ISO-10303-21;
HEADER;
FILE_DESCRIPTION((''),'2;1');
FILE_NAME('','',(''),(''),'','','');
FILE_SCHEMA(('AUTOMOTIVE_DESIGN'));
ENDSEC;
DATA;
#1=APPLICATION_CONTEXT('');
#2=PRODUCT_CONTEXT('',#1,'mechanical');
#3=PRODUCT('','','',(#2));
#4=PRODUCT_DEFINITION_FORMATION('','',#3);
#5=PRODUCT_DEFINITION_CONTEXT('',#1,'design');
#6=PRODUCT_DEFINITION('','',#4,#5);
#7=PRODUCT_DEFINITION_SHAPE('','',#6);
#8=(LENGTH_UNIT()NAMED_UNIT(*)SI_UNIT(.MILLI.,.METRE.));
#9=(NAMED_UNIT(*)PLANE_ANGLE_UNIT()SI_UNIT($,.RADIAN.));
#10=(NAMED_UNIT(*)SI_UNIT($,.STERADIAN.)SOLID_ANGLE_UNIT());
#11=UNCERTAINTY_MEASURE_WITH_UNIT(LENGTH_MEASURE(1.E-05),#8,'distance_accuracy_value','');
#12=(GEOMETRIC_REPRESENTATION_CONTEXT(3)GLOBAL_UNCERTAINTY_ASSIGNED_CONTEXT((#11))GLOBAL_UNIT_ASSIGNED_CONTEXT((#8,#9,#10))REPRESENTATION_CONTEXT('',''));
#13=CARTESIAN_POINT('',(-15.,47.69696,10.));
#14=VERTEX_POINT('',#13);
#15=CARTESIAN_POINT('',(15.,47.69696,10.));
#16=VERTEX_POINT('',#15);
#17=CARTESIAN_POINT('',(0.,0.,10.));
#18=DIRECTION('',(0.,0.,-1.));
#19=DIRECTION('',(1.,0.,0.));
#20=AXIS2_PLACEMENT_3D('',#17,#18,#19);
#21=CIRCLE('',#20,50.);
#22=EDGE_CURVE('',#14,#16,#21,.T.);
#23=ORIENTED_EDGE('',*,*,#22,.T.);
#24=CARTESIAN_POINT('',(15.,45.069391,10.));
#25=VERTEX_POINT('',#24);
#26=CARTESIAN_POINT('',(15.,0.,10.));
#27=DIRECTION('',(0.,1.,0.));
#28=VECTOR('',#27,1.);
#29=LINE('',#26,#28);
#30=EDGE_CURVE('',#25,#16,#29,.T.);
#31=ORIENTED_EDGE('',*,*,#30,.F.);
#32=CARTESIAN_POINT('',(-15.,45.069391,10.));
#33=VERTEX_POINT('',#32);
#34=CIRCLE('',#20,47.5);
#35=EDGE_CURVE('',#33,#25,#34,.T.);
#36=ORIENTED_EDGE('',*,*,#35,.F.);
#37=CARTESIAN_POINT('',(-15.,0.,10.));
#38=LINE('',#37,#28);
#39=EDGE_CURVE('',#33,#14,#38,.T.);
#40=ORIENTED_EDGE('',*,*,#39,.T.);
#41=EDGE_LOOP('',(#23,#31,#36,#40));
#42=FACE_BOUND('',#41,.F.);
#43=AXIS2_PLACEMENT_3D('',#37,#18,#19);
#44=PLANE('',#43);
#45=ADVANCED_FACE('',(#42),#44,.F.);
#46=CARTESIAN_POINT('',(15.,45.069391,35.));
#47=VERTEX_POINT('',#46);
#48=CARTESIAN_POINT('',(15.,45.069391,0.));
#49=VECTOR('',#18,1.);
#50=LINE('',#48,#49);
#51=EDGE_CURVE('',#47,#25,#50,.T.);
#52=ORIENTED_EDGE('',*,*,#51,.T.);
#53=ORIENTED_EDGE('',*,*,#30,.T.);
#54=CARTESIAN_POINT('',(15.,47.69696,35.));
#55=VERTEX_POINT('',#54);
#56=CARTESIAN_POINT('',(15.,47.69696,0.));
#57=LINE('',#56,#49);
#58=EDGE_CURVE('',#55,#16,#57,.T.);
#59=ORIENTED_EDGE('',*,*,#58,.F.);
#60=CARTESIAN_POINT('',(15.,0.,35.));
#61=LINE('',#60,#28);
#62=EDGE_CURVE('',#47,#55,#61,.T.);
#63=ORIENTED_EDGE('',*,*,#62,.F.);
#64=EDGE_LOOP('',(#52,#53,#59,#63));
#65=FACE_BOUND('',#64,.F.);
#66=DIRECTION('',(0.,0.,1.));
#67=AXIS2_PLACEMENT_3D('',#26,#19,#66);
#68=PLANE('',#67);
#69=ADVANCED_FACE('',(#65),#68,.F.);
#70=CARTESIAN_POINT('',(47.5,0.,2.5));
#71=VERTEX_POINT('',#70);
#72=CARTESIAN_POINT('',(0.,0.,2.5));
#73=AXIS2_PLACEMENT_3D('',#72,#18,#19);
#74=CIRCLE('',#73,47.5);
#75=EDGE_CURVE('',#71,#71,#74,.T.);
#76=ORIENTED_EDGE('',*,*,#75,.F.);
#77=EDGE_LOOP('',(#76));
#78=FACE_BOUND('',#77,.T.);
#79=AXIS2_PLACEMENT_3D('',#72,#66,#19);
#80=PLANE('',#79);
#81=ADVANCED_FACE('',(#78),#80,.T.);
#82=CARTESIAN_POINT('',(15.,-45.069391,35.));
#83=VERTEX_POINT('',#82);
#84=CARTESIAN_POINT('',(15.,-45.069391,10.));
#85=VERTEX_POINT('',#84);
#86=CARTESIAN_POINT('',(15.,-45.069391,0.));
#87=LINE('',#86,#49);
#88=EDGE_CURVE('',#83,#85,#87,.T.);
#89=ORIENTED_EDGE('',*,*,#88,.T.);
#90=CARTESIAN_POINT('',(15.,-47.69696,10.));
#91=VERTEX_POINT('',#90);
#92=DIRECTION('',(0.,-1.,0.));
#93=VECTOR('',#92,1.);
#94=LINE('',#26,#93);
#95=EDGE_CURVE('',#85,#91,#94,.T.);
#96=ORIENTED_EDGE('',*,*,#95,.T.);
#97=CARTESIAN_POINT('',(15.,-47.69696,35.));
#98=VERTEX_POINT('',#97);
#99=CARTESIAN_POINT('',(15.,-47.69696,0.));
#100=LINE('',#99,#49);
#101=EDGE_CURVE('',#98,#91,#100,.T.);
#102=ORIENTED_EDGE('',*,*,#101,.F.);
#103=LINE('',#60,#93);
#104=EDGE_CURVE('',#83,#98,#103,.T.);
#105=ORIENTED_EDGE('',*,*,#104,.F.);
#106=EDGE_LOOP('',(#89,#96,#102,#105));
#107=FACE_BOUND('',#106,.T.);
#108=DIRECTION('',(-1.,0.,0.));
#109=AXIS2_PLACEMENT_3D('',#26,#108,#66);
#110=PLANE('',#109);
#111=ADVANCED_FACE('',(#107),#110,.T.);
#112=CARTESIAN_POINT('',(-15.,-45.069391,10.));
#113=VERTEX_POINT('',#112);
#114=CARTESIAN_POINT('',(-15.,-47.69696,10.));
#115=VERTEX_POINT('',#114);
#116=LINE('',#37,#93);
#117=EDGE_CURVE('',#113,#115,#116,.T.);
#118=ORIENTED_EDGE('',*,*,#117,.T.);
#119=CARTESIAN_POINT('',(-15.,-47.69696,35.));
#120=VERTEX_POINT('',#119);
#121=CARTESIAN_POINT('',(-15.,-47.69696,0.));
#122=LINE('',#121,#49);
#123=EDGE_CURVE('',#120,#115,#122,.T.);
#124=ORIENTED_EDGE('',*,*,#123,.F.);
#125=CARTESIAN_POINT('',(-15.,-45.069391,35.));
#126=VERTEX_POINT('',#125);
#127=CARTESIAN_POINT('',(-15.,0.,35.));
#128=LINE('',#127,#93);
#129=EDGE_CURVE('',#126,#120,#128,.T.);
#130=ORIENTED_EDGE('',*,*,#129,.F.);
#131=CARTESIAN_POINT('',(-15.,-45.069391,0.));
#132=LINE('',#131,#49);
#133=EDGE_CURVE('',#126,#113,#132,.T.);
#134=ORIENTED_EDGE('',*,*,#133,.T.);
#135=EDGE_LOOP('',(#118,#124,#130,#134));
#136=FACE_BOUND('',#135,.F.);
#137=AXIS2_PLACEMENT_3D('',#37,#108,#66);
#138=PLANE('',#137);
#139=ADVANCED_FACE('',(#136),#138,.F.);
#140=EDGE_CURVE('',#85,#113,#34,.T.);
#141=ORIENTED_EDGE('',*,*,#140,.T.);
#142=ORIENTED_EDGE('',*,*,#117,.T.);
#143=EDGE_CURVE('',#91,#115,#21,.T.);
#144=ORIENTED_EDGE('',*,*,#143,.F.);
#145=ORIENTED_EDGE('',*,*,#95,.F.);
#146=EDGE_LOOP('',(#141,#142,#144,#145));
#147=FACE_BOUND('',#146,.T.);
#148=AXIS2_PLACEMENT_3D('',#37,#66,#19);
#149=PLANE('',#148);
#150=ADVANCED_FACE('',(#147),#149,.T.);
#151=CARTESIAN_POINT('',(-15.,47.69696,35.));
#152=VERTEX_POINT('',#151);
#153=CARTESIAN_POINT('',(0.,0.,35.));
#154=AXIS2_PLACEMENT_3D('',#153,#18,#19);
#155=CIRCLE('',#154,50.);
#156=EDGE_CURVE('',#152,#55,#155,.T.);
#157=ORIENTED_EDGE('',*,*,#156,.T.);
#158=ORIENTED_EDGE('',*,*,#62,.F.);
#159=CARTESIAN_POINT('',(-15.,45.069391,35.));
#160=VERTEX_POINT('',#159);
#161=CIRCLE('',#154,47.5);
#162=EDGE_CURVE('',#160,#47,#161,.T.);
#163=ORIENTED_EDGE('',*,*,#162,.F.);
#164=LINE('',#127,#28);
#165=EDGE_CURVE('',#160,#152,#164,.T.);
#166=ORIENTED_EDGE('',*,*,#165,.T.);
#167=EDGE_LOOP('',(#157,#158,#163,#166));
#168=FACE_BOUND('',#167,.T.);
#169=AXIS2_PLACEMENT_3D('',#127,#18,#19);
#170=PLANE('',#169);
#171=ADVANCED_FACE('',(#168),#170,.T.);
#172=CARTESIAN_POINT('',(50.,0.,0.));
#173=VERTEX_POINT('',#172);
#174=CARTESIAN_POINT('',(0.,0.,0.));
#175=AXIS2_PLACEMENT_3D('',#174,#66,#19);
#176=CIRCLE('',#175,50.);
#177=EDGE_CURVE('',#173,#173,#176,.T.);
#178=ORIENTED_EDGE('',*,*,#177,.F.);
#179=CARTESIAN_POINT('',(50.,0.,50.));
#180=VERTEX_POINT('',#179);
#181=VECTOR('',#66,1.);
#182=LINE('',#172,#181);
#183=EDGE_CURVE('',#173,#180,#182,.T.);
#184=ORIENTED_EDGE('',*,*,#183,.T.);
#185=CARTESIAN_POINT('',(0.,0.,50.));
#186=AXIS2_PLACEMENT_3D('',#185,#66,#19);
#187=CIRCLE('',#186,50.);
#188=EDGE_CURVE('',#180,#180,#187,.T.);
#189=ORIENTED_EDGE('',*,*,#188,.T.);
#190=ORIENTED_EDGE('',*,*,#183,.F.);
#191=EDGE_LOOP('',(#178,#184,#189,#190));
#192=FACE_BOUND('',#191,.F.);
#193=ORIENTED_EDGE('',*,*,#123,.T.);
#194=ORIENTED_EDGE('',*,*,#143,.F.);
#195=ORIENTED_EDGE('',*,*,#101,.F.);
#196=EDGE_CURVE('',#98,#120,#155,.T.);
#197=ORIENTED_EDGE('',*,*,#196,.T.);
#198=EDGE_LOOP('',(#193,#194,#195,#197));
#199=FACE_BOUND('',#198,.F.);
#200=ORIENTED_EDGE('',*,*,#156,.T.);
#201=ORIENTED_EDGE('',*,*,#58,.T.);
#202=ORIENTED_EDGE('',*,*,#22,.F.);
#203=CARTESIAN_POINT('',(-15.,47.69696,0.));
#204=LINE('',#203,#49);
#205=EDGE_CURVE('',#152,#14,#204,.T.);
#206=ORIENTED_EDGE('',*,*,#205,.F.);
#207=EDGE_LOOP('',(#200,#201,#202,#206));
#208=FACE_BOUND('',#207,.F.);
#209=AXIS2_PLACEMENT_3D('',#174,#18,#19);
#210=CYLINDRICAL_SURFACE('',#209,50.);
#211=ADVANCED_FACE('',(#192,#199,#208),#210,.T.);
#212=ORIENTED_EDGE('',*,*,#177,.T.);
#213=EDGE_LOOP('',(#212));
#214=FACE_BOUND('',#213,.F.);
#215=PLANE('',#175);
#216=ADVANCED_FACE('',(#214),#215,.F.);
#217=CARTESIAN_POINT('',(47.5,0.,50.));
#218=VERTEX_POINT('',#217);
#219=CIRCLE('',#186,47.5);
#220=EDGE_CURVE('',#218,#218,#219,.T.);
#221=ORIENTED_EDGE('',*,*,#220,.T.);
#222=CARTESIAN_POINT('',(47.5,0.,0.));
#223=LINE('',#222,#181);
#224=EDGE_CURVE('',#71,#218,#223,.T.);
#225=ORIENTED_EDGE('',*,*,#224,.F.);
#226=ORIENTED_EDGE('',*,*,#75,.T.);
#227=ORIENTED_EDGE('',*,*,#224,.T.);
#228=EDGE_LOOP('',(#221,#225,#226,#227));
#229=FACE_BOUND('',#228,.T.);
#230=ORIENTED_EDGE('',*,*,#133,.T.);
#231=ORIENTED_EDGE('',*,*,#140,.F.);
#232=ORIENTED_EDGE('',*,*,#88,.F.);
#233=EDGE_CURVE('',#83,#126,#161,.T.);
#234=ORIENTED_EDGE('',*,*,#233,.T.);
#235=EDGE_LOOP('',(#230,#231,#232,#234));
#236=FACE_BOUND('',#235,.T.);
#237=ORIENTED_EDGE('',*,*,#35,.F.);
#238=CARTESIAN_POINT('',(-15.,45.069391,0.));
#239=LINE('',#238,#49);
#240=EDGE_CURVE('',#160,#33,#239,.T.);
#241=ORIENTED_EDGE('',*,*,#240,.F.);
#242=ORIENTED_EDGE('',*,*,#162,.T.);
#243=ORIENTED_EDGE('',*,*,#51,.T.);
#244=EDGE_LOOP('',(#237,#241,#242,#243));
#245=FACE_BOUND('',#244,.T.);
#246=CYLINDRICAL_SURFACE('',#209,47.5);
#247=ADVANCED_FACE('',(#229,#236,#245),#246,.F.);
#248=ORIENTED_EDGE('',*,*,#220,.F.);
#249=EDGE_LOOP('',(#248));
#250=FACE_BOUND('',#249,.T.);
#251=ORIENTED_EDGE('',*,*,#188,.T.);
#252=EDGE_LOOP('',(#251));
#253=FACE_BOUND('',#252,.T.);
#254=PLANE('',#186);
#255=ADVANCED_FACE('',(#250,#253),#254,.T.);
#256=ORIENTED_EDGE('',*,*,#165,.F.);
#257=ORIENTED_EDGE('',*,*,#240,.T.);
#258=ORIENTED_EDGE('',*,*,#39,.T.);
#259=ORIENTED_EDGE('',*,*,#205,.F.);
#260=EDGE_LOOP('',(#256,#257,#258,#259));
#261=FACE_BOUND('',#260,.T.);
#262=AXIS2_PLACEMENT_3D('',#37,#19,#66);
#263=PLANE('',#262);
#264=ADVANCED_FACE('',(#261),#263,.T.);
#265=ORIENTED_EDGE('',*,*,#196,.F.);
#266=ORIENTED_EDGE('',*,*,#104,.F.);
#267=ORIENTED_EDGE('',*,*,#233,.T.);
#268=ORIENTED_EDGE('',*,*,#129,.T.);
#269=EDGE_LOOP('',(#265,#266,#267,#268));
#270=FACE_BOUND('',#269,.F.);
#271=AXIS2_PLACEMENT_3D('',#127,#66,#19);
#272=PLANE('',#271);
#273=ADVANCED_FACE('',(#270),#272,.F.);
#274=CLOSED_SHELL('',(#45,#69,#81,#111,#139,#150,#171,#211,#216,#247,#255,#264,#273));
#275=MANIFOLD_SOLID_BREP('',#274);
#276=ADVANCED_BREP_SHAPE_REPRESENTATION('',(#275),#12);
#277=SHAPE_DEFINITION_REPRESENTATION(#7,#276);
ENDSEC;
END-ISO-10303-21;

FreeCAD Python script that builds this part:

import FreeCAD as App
import Part
import Sketcher


def faces_at(feature, points):
    """Names of the faces that lie closest to the given points."""
    faces = feature.Shape.Faces
    near = lambda p: min(range(len(faces)), key=lambda i: faces[i].distToShape(Part.Vertex(*p))[0])
    return sorted({f"Face{near(p) + 1}" for p in points})


def add_polygon(sketch, points):
    """Adds a closed chain of lines whose ends are joined by coincident constraints."""
    first, n = sketch.GeometryCount, len(points)
    for a, b in zip(points, points[1:] + points[:1]):
        sketch.addGeometry(Part.LineSegment(App.Vector(*a, 0), App.Vector(*b, 0)), False)
    for i in range(n):
        sketch.addConstraint(Sketcher.Constraint("Coincident", first + i, 2, first + (i + 1) % n, 1))

doc = App.newDocument("Part")
body = doc.addObject("PartDesign::Body", "Body")

sketch1 = doc.addObject("Sketcher::SketchObject", "Sketch")
body.addObject(sketch1)
sketch1.AttachmentSupport = (doc.XY_Plane, [""])
sketch1.MapMode = "FlatFace"
sketch1.addGeometry(Part.Circle(App.Vector(0, 0, 0), App.Vector(0, 0, 1), 50), False)
sketch1.addConstraint(Sketcher.Constraint("Coincident", 0, 3, -1, 1))
sketch1.addConstraint(Sketcher.Constraint("Diameter", 0, 100.0))
pad1 = doc.addObject("PartDesign::Pad", "Pad")
body.addObject(pad1)
pad1.Profile = sketch1
pad1.Length = 50
doc.recompute()

thickness = doc.addObject("PartDesign::Thickness", "Thickness")
body.addObject(thickness)
thickness.Base = (pad1, faces_at(pad1, [(0, 0, 50)]))
thickness.Value = 2.5
thickness.Reversed = True
thickness.Join = "Arc"

sketch2 = doc.addObject("Sketcher::SketchObject", "Sketch001")
body.addObject(sketch2)
sketch2.AttachmentSupport = (doc.XZ_Plane, [""])
sketch2.MapMode = "FlatFace"
add_polygon(sketch2, [(-15, 35), (-15, 10), (15, 10), (15, 35)])
sketch2.addConstraint(Sketcher.Constraint("Vertical", 0))
sketch2.addConstraint(Sketcher.Constraint("Horizontal", 1))
sketch2.addConstraint(Sketcher.Constraint("Vertical", 2))
sketch2.addConstraint(Sketcher.Constraint("Horizontal", 3))
sketch2.addConstraint(Sketcher.Constraint("DistanceX", 1, 1, 1, 2, 30.0))
sketch2.addConstraint(Sketcher.Constraint("DistanceY", 0, 2, 0, 1, 25.0))
sketch2.addConstraint(Sketcher.Constraint("DistanceX", 0, 2, -1, 1, 15.0))
sketch2.addConstraint(Sketcher.Constraint("DistanceY", -1, 1, 0, 2, 10.0))
pocket1 = doc.addObject("PartDesign::Pocket", "Pocket")
body.addObject(pocket1)
pocket1.Profile = sketch2
pocket1.Type = "ThroughAll"
pocket1.Midplane = True

doc.recompute()
